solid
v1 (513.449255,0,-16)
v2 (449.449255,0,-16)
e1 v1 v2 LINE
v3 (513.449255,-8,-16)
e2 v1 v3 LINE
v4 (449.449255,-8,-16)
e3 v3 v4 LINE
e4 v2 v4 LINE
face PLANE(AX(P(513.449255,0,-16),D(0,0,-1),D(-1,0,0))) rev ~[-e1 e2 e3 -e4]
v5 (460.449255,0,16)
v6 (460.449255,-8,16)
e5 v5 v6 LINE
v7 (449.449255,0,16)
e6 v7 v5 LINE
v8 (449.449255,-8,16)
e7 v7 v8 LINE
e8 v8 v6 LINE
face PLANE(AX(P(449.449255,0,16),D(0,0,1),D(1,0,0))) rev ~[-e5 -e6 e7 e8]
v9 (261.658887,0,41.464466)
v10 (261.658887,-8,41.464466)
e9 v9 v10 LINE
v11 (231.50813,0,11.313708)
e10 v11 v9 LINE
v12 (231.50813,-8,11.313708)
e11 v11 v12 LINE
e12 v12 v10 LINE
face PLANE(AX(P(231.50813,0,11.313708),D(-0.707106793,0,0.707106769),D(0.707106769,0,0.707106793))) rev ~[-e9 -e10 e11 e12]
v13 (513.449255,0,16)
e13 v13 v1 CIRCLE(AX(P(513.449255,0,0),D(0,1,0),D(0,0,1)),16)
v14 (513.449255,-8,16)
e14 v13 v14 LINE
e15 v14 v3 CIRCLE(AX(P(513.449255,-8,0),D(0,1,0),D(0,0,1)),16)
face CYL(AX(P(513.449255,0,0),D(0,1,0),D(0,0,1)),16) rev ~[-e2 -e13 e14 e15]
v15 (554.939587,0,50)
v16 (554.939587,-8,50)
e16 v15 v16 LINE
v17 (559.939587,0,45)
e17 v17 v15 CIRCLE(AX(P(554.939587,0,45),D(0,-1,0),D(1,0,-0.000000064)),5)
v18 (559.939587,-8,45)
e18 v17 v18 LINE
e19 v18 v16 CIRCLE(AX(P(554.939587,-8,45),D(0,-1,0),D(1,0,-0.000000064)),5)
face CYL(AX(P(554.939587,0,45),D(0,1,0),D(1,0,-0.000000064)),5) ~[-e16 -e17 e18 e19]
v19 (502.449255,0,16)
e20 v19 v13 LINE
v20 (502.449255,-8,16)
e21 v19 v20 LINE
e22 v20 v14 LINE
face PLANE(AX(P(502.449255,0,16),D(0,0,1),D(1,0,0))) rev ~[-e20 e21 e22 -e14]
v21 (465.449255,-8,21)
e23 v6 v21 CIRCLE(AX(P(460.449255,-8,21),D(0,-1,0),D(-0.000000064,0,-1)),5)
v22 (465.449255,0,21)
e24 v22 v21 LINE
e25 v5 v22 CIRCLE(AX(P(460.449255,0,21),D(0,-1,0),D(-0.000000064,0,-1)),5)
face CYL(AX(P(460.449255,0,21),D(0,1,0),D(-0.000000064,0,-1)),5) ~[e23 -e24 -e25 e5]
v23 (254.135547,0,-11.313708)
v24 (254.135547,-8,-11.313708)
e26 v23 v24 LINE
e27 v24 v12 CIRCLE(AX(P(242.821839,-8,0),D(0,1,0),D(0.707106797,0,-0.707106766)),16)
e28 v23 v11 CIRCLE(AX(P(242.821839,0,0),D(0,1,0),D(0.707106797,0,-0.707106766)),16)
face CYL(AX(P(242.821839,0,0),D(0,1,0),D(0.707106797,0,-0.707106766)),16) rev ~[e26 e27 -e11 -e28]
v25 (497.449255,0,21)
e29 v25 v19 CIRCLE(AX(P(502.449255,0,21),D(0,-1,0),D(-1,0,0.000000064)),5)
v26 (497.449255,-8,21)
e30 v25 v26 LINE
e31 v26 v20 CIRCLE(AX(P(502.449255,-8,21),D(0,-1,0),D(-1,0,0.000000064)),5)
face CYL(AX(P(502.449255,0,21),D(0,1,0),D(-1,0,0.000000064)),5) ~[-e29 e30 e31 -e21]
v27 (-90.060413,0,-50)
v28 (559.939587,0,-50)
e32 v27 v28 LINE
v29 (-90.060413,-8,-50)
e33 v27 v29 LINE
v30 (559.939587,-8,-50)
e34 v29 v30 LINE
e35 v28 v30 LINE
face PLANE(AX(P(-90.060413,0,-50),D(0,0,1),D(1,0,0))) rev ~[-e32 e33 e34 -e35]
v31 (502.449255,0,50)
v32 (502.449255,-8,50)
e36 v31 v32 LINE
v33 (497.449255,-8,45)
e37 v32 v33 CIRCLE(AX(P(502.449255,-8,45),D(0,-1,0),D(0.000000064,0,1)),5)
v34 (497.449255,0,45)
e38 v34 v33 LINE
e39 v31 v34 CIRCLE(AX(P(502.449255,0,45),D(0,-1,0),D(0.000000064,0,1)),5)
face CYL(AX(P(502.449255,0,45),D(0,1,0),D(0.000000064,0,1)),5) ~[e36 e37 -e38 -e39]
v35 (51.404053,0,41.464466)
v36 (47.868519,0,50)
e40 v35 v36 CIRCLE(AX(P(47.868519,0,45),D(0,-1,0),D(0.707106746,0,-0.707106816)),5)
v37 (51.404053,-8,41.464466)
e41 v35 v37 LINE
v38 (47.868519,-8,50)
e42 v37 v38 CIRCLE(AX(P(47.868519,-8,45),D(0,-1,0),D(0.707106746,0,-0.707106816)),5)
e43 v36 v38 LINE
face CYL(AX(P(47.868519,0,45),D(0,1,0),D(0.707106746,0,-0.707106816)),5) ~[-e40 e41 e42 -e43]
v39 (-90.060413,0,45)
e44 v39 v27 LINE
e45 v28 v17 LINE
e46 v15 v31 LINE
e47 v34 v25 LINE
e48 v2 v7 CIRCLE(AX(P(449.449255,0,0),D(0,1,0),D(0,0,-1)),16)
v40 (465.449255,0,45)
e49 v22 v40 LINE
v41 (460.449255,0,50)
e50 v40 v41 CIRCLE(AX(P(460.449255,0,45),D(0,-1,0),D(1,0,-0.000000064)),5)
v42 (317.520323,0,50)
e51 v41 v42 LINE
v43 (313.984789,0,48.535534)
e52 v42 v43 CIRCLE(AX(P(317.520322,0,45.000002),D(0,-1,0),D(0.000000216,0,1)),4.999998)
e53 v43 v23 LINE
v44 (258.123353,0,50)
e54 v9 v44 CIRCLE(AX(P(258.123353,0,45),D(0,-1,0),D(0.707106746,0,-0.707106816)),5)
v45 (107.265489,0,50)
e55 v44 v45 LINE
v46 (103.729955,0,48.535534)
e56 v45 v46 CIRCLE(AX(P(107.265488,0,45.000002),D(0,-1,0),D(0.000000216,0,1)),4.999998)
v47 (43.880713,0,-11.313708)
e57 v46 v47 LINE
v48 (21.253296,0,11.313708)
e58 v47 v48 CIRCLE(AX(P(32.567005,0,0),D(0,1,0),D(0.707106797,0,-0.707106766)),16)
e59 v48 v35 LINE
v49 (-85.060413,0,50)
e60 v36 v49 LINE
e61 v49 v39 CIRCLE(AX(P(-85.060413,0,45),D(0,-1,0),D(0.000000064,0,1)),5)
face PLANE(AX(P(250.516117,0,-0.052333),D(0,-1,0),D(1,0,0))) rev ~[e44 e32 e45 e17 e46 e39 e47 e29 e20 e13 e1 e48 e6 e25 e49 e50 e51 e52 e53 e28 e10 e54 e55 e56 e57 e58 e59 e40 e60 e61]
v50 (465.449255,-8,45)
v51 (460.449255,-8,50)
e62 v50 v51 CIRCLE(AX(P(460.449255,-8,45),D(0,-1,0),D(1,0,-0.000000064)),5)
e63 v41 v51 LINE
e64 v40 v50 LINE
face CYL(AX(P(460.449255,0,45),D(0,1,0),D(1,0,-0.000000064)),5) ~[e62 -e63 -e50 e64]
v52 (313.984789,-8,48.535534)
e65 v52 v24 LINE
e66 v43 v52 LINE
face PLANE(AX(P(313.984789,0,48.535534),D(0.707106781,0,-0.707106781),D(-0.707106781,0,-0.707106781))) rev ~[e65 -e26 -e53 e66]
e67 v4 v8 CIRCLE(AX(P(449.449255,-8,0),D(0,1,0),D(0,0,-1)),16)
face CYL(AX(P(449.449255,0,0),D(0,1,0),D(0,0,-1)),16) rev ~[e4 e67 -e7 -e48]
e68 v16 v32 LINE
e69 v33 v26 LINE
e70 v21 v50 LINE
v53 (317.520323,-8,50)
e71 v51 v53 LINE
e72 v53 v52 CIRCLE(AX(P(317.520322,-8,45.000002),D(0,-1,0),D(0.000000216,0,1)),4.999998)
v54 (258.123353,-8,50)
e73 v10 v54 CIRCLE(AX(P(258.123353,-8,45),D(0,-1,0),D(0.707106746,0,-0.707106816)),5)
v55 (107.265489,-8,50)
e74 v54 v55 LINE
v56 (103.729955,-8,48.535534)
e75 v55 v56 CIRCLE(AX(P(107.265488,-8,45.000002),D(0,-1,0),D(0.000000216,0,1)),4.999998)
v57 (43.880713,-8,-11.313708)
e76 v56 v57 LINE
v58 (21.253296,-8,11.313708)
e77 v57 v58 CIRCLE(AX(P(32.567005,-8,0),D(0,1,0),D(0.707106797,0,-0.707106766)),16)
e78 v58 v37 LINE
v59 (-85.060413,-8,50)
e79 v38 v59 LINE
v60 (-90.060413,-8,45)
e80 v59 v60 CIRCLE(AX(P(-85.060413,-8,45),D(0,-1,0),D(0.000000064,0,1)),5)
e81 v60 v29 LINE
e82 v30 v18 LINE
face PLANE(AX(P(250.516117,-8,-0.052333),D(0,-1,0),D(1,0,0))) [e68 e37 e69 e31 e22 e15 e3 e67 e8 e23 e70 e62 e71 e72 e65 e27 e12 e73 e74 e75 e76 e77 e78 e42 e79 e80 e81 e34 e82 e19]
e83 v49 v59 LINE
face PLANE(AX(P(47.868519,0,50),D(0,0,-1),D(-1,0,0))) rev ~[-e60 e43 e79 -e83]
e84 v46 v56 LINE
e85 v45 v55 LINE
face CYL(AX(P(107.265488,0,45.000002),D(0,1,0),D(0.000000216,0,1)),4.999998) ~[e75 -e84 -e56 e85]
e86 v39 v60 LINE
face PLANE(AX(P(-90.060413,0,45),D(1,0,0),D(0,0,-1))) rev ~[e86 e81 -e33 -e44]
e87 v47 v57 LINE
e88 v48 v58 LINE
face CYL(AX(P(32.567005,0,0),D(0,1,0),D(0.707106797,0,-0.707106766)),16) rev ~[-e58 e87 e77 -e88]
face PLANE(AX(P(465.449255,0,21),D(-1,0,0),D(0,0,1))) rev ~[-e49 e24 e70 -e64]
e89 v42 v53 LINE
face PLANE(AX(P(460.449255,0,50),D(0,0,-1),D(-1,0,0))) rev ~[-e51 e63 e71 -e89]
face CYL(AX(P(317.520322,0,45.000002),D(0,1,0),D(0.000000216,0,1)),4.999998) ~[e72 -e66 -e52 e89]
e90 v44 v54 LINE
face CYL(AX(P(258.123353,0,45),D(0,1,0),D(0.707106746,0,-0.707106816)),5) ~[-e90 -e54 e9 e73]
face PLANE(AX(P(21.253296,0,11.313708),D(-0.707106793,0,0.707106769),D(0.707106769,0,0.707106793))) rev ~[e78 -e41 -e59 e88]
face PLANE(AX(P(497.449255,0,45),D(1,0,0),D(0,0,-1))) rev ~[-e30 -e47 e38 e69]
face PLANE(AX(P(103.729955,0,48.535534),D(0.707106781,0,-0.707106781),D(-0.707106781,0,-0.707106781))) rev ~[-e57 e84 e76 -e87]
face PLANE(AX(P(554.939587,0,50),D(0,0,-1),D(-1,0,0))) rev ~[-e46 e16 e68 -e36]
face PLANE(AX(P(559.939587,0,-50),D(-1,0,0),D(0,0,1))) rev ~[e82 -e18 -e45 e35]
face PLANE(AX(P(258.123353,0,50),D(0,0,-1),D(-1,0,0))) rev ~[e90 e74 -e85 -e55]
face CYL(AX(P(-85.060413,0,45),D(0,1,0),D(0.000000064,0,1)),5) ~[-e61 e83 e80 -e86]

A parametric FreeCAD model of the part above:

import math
import FreeCAD as App
import Part
import Sketcher
Q = App.Units.Quantity

doc = App.newDocument("Part")
body = doc.addObject("PartDesign::Body", "Body")

# Sketch on XZ plane
sketch1 = body.newObject("Sketcher::SketchObject", "Sketch")
sketch1.AttachmentSupport = (doc.getObject("XZ_Plane"), [""])
sketch1.MapMode = "FlatFace"
sketch1.addGeometry(Part.LineSegment(App.Vector(47.9, 50, 0), App.Vector(-85.1, 50, 0)), False)
sketch1.addGeometry(Part.ArcOfCircle(Part.Circle(App.Vector(-85.1, 45, 0), App.Vector(0, 0, 1), 5), math.radians(90), math.radians(180)), False)
sketch1.addGeometry(Part.LineSegment(App.Vector(-90.1, 45, 0), App.Vector(-90.1, -50, 0)), False)
sketch1.addGeometry(Part.LineSegment(App.Vector(-90.1, -50, 0), App.Vector(559.9, -50, 0)), False)
sketch1.addGeometry(Part.LineSegment(App.Vector(559.9, -50, 0), App.Vector(559.9, 45, 0)), False)
sketch1.addGeometry(Part.ArcOfCircle(Part.Circle(App.Vector(554.9, 45, 0), App.Vector(0, 0, 1), 5), math.radians(0), math.radians(90)), False)
sketch1.addGeometry(Part.LineSegment(App.Vector(554.9, 50, 0), App.Vector(502.4, 50, 0)), False)
sketch1.addGeometry(Part.ArcOfCircle(Part.Circle(App.Vector(502.4, 45, 0), App.Vector(0, 0, 1), 5), math.radians(90), math.radians(180)), False)
sketch1.addGeometry(Part.LineSegment(App.Vector(497.4, 45, 0), App.Vector(497.4, 21, 0)), False)
sketch1.addGeometry(Part.ArcOfCircle(Part.Circle(App.Vector(502.4, 21, 0), App.Vector(0, 0, 1), 5), math.radians(180), math.radians(270)), False)
sketch1.addGeometry(Part.LineSegment(App.Vector(502.4, 16, 0), App.Vector(513.4, 16, 0)), False)
sketch1.addGeometry(Part.ArcOfCircle(Part.Circle(App.Vector(513.4, 0, 0), App.Vector(0, 0, 1), 16), math.radians(-90), math.radians(90)), False)
sketch1.addGeometry(Part.LineSegment(App.Vector(513.4, -16, 0), App.Vector(449.4, -16, 0)), False)
sketch1.addGeometry(Part.ArcOfCircle(Part.Circle(App.Vector(449.4, 0, 0), App.Vector(0, 0, 1), 16), math.radians(90), math.radians(270)), False)
sketch1.addGeometry(Part.LineSegment(App.Vector(449.4, 16, 0), App.Vector(460.4, 16, 0)), False)
sketch1.addGeometry(Part.ArcOfCircle(Part.Circle(App.Vector(460.4, 21, 0), App.Vector(0, 0, 1), 5), math.radians(-90), math.radians(0)), False)
sketch1.addGeometry(Part.LineSegment(App.Vector(465.4, 21, 0), App.Vector(465.4, 45, 0)), False)
sketch1.addGeometry(Part.ArcOfCircle(Part.Circle(App.Vector(460.4, 45, 0), App.Vector(0, 0, 1), 5), math.radians(0), math.radians(90)), False)
sketch1.addGeometry(Part.LineSegment(App.Vector(460.4, 50, 0), App.Vector(317.5, 50, 0)), False)
sketch1.addGeometry(Part.ArcOfCircle(Part.Circle(App.Vector(317.5, 45, 0), App.Vector(0, 0, 1), 5), math.radians(90), math.radians(135)), False)
sketch1.addGeometry(Part.LineSegment(App.Vector(314, 48.5, 0), App.Vector(254.1, -11.3, 0)), False)
sketch1.addGeometry(Part.ArcOfCircle(Part.Circle(App.Vector(242.8, 0, 0), App.Vector(0, 0, 1), 16), math.radians(135), math.radians(315)), False)
sketch1.addGeometry(Part.LineSegment(App.Vector(231.5, 11.3, 0), App.Vector(261.7, 41.5, 0)), False)
sketch1.addGeometry(Part.ArcOfCircle(Part.Circle(App.Vector(258.1, 45, 0), App.Vector(0, 0, 1), 5), math.radians(-45), math.radians(90)), False)
sketch1.addGeometry(Part.LineSegment(App.Vector(258.1, 50, 0), App.Vector(107.3, 50, 0)), False)
sketch1.addGeometry(Part.ArcOfCircle(Part.Circle(App.Vector(107.3, 45, 0), App.Vector(0, 0, 1), 5), math.radians(90), math.radians(135)), False)
sketch1.addGeometry(Part.LineSegment(App.Vector(103.7, 48.5, 0), App.Vector(43.9, -11.3, 0)), False)
sketch1.addGeometry(Part.ArcOfCircle(Part.Circle(App.Vector(32.6, 0, 0), App.Vector(0, 0, 1), 16), math.radians(135), math.radians(315)), False)
sketch1.addGeometry(Part.LineSegment(App.Vector(21.3, 11.3, 0), App.Vector(51.4, 41.5, 0)), False)
sketch1.addGeometry(Part.ArcOfCircle(Part.Circle(App.Vector(47.9, 45, 0), App.Vector(0, 0, 1), 5), math.radians(-45), math.radians(90)), False)
sketch1.addConstraint(Sketcher.Constraint("Tangent", 0, 2, 1, 1))
sketch1.addConstraint(Sketcher.Constraint("Tangent", 1, 2, 2, 1))
sketch1.addConstraint(Sketcher.Constraint("Coincident", 2, 2, 3, 1))
sketch1.addConstraint(Sketcher.Constraint("Coincident", 3, 2, 4, 1))
sketch1.addConstraint(Sketcher.Constraint("Tangent", 4, 2, 5, 1))
sketch1.addConstraint(Sketcher.Constraint("Tangent", 5, 2, 6, 1))
sketch1.addConstraint(Sketcher.Constraint("Tangent", 6, 2, 7, 1))
sketch1.addConstraint(Sketcher.Constraint("Tangent", 7, 2, 8, 1))
sketch1.addConstraint(Sketcher.Constraint("Tangent", 8, 2, 9, 1))
sketch1.addConstraint(Sketcher.Constraint("Tangent", 9, 2, 10, 1))
sketch1.addConstraint(Sketcher.Constraint("Tangent", 10, 2, 11, 2))
sketch1.addConstraint(Sketcher.Constraint("Tangent", 11, 1, 12, 1))
sketch1.addConstraint(Sketcher.Constraint("Tangent", 12, 2, 13, 2))
sketch1.addConstraint(Sketcher.Constraint("Tangent", 13, 1, 14, 1))
sketch1.addConstraint(Sketcher.Constraint("Tangent", 14, 2, 15, 1))
sketch1.addConstraint(Sketcher.Constraint("Tangent", 15, 2, 16, 1))
sketch1.addConstraint(Sketcher.Constraint("Tangent", 16, 2, 17, 1))
sketch1.addConstraint(Sketcher.Constraint("Tangent", 17, 2, 18, 1))
sketch1.addConstraint(Sketcher.Constraint("Tangent", 18, 2, 19, 1))
sketch1.addConstraint(Sketcher.Constraint("Tangent", 19, 2, 20, 1))
sketch1.addConstraint(Sketcher.Constraint("Tangent", 20, 2, 21, 2))
sketch1.addConstraint(Sketcher.Constraint("Tangent", 21, 1, 22, 1))
sketch1.addConstraint(Sketcher.Constraint("Tangent", 22, 2, 23, 1))
sketch1.addConstraint(Sketcher.Constraint("Tangent", 23, 2, 24, 1))
sketch1.addConstraint(Sketcher.Constraint("Tangent", 24, 2, 25, 1))
sketch1.addConstraint(Sketcher.Constraint("Tangent", 25, 2, 26, 1))
sketch1.addConstraint(Sketcher.Constraint("Tangent", 26, 2, 27, 2))
sketch1.addConstraint(Sketcher.Constraint("Tangent", 27, 1, 28, 1))
sketch1.addConstraint(Sketcher.Constraint("Tangent", 28, 2, 29, 1))
sketch1.addConstraint(Sketcher.Constraint("Tangent", 29, 2, 0, 1))
sketch1.addConstraint(Sketcher.Constraint("Horizontal", 0))
sketch1.addConstraint(Sketcher.Constraint("Vertical", 2))
sketch1.addConstraint(Sketcher.Constraint("Horizontal", 3))
sketch1.addConstraint(Sketcher.Constraint("Vertical", 4))
sketch1.addConstraint(Sketcher.Constraint("Horizontal", 6))
sketch1.addConstraint(Sketcher.Constraint("Vertical", 8))
sketch1.addConstraint(Sketcher.Constraint("Horizontal", 10))
sketch1.addConstraint(Sketcher.Constraint("Horizontal", 12))
sketch1.addConstraint(Sketcher.Constraint("Horizontal", 14))
sketch1.addConstraint(Sketcher.Constraint("Vertical", 16))
sketch1.addConstraint(Sketcher.Constraint("Horizontal", 18))
sketch1.addConstraint(Sketcher.Constraint("Horizontal", 24))
sketch1.addConstraint(Sketcher.Constraint("Equal", 1, 5))
sketch1.addConstraint(Sketcher.Constraint("Equal", 5, 7))
sketch1.addConstraint(Sketcher.Constraint("Equal", 7, 9))
sketch1.addConstraint(Sketcher.Constraint("Equal", 11, 13))
sketch1.addConstraint(Sketcher.Constraint("Equal", 9, 15))
sketch1.addConstraint(Sketcher.Constraint("Equal", 15, 17))
sketch1.addConstraint(Sketcher.Constraint("Equal", 17, 19))
sketch1.addConstraint(Sketcher.Constraint("Equal", 13, 21))
sketch1.addConstraint(Sketcher.Constraint("Equal", 17, 23))
sketch1.addConstraint(Sketcher.Constraint("Equal", 19, 25))
sketch1.addConstraint(Sketcher.Constraint("Equal", 21, 27))
sketch1.addConstraint(Sketcher.Constraint("Equal", 23, 29))
sketch1.addConstraint(Sketcher.Constraint("PointOnObject", 11, 3, -1))
sketch1.addConstraint(Sketcher.Constraint("PointOnObject", 21, 3, -1))
sketch1.addConstraint(Sketcher.Constraint("PointOnObject", 27, 3, -1))
sketch1.addConstraint(Sketcher.Constraint("Parallel", 20, 22))
sketch1.addConstraint(Sketcher.Constraint("Parallel", 22, 26))
sketch1.addConstraint(Sketcher.Constraint("Parallel", 26, 28))
sketch1.addConstraint(Sketcher.Constraint("Horizontal", 1, 3, 5, 3))
sketch1.addConstraint(Sketcher.Constraint("Horizontal", 7, 3, 17, 3))
sketch1.addConstraint(Sketcher.Constraint("Horizontal", 17, 3, 23, 3))
sketch1.addConstraint(Sketcher.Constraint("Equal", 10, 14))
sketch1.addConstraint(Sketcher.Constraint("Radius", 1, Q("5 mm")))
sketch1.addConstraint(Sketcher.Constraint("Radius", 11, Q("16 mm")))
sketch1.addConstraint(Sketcher.Constraint("DistanceX", 3, 1, 3, 2, Q("650 mm")))
sketch1.addConstraint(Sketcher.Constraint("DistanceX", 10, 1, 10, 2, Q("11 mm")))
sketch1.addConstraint(Sketcher.Constraint("DistanceX", 12, 2, 12, 1, Q("64 mm")))
sketch1.addConstraint(Sketcher.Constraint("DistanceY", 2, 2, 2, 1, Q("95 mm")))
sketch1.addConstraint(Sketcher.Constraint("DistanceY", 8, 2, 8, 1, Q("24 mm")))
sketch1.addConstraint(Sketcher.Constraint("Angle", 20, Q("-135 deg")))
sketch1.addConstraint(Sketcher.Constraint("DistanceX", 0, 2, 0, 1, Q("132.928932 mm")))
sketch1.addConstraint(Sketcher.Constraint("DistanceX", 6, 2, 6, 1, Q("52.490332 mm")))
sketch1.addConstraint(Sketcher.Constraint("DistanceX", 18, 2, 18, 1, Q("142.928932 mm")))
sketch1.addConstraint(Sketcher.Constraint("DistanceX", -1, 1, 19, 3, Q("317.520322 mm")))
pad1 = body.newObject("PartDesign::Pad", "Pad")
pad1.Profile = sketch1
pad1.Length = 8

doc.recompute()
